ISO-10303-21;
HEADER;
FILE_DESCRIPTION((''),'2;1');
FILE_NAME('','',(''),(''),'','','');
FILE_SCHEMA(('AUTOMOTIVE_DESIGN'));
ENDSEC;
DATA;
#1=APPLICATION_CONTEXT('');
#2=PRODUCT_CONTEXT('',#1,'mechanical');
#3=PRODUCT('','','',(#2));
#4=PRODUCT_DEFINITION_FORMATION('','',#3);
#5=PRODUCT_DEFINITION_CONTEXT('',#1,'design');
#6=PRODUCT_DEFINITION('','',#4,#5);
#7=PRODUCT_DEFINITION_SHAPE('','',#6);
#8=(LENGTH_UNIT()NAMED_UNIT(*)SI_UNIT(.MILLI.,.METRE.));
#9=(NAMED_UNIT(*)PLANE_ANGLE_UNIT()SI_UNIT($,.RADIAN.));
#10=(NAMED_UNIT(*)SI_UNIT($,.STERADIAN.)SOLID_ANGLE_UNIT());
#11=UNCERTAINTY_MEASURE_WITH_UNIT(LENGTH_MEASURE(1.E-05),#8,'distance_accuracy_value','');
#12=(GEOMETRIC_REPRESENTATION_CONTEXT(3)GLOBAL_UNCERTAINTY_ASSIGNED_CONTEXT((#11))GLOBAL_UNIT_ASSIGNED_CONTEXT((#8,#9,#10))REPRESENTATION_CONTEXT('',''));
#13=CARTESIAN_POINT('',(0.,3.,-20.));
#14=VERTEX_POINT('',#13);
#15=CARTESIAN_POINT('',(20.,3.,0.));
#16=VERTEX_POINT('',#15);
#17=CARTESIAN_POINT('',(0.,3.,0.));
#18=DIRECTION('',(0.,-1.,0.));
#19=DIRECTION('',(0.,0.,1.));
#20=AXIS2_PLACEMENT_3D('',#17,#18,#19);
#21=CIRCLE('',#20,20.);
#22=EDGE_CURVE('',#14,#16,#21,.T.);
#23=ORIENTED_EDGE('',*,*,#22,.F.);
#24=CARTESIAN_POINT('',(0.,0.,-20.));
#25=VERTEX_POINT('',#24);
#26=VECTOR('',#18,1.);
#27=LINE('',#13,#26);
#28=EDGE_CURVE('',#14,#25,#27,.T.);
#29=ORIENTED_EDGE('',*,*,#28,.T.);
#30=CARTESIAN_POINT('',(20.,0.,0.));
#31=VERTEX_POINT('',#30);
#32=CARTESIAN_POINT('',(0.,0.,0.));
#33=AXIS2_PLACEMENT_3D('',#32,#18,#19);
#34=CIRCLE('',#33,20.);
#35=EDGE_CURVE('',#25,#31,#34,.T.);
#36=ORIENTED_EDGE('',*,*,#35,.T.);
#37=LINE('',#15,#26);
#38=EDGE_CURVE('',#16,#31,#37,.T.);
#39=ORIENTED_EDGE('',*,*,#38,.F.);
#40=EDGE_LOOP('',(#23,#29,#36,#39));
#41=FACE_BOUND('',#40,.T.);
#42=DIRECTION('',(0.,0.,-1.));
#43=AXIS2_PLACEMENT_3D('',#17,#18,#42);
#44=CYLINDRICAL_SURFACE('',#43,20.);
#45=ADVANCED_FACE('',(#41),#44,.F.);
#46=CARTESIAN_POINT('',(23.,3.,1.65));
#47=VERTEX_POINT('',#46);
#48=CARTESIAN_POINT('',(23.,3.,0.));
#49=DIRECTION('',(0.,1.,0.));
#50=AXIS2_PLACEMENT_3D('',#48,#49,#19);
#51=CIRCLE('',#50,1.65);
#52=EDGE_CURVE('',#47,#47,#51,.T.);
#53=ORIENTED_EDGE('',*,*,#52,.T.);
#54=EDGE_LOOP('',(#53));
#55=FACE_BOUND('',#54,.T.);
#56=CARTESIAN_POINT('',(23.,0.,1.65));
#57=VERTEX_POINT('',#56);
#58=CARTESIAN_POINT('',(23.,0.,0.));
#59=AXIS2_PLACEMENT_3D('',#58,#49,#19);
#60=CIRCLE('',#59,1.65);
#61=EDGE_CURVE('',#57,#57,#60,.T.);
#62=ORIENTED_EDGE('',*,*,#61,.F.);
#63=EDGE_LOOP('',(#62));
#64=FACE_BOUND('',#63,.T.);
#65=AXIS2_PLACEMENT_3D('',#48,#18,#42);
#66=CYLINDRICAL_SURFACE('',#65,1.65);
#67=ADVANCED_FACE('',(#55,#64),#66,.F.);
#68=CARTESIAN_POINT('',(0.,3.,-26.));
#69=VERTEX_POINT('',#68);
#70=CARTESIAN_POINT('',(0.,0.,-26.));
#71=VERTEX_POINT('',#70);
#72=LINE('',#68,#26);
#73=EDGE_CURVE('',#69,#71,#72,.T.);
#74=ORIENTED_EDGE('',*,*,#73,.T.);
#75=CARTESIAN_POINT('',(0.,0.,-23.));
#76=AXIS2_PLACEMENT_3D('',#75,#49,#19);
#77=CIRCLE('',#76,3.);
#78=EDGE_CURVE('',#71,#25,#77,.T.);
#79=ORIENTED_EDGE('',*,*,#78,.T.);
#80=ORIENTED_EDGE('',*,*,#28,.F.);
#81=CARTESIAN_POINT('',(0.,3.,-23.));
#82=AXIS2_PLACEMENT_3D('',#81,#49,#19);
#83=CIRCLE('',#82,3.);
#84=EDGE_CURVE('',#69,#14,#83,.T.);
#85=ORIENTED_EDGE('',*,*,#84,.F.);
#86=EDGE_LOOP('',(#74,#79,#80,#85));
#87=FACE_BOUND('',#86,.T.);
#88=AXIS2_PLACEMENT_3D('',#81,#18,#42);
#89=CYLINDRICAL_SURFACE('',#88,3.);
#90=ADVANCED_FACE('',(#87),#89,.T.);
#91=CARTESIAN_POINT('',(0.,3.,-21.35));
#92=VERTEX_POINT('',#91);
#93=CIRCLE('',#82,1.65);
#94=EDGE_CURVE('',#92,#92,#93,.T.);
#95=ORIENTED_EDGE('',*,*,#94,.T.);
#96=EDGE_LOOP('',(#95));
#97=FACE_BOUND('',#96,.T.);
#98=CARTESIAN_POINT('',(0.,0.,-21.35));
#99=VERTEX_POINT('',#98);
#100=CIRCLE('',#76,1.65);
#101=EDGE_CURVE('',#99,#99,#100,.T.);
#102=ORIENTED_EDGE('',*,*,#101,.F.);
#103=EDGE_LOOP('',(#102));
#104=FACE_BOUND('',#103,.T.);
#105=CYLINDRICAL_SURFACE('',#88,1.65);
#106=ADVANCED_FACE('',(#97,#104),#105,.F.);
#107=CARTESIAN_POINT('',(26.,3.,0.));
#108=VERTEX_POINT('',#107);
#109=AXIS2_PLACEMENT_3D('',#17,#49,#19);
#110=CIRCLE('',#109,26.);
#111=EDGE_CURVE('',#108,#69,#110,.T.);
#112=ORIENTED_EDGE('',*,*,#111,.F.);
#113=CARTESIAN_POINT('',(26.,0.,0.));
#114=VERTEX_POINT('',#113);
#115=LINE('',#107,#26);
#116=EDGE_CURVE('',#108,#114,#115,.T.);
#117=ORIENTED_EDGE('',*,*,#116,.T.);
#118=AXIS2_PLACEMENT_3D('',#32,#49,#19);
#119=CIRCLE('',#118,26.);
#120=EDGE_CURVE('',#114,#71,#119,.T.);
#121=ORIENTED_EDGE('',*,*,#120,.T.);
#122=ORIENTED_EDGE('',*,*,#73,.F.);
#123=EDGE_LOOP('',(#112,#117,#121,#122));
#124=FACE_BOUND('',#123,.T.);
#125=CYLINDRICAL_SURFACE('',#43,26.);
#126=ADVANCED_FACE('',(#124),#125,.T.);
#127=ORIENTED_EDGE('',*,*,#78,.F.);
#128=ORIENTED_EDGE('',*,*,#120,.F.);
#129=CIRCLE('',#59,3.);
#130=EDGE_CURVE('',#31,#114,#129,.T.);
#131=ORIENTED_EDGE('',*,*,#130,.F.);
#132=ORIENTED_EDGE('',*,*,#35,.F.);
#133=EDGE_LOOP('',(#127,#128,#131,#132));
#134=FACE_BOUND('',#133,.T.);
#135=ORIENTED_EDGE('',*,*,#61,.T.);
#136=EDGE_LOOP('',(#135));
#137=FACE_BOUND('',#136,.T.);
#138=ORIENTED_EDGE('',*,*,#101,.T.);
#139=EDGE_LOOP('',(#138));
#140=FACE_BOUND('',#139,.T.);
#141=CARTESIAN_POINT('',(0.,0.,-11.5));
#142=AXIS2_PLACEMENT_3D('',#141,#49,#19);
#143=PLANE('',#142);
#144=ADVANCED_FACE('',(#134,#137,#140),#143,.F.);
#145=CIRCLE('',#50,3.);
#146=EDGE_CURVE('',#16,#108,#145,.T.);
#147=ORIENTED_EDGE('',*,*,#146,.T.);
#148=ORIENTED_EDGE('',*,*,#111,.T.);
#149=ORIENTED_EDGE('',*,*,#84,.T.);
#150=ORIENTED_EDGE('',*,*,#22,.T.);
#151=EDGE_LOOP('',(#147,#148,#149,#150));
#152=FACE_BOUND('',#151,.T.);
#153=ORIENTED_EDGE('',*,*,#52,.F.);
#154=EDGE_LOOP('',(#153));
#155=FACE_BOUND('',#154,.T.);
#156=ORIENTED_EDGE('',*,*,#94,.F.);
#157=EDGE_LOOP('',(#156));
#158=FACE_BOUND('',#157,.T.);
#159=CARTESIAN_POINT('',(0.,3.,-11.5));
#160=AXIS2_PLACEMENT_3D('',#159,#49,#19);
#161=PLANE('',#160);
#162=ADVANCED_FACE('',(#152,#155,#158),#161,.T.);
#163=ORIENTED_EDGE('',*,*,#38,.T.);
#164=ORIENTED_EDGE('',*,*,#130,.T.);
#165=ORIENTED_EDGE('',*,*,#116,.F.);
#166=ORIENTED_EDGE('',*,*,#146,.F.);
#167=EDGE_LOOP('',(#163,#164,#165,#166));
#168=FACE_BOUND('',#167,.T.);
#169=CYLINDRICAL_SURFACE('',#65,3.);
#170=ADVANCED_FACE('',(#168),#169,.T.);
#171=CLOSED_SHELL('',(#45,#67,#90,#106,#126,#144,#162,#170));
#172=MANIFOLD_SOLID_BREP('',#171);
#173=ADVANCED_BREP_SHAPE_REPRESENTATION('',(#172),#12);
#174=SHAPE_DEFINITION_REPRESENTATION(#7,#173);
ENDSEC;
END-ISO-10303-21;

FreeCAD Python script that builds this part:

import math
import FreeCAD as App
import Part
import Sketcher
from FreeCAD import Vector

doc = App.newDocument("Part")
body = doc.addObject("PartDesign::Body", "Body")

sketch1 = body.newObject("Sketcher::SketchObject", "Sketch")
sketch1.AttachmentSupport = (doc.getObject("XZ_Plane"), [""])
sketch1.MapMode = "FlatFace"
sketch1.addGeometry(Part.ArcOfCircle(Part.Circle(Vector(0, 0, 0), Vector(0, 0, 1), 20), math.radians(-90), math.radians(0)), False)
sketch1.addGeometry(Part.ArcOfCircle(Part.Circle(Vector(23, 0, 0), Vector(0, 0, 1), 3), math.radians(0), math.radians(180)), False)
sketch1.addGeometry(Part.ArcOfCircle(Part.Circle(Vector(0, 0, 0), Vector(0, 0, 1), 26), math.radians(-90), math.radians(0)), False)
sketch1.addGeometry(Part.ArcOfCircle(Part.Circle(Vector(0, -23, 0), Vector(0, 0, 1), 3), math.radians(90), math.radians(270)), False)
sketch1.addGeometry(Part.Circle(Vector(23, 0, 0), Vector(0, 0, 1), 1.6), False)
sketch1.addGeometry(Part.Circle(Vector(0, -23, 0), Vector(0, 0, 1), 1.6), False)
sketch1.addConstraint(Sketcher.Constraint("Tangent", 0, 2, 1, 2))
sketch1.addConstraint(Sketcher.Constraint("Tangent", 1, 1, 2, 2))
sketch1.addConstraint(Sketcher.Constraint("Tangent", 2, 1, 3, 2))
sketch1.addConstraint(Sketcher.Constraint("Tangent", 3, 1, 0, 1))
sketch1.addConstraint(Sketcher.Constraint("Coincident", 0, 3, -1, 1))
sketch1.addConstraint(Sketcher.Constraint("Coincident", 2, 3, -1, 1))
sketch1.addConstraint(Sketcher.Constraint("Coincident", 4, 3, 1, 3))
sketch1.addConstraint(Sketcher.Constraint("Coincident", 5, 3, 3, 3))
sketch1.addConstraint(Sketcher.Constraint("Equal", 4, 5))
sketch1.addConstraint(Sketcher.Constraint("PointOnObject", 1, 3, -1))
sketch1.addConstraint(Sketcher.Constraint("PointOnObject", 3, 3, -2))
sketch1.addConstraint(Sketcher.Constraint("Radius", 0, 20.0))
sketch1.addConstraint(Sketcher.Constraint("Radius", 1, 3.0))
sketch1.addConstraint(Sketcher.Constraint("Diameter", 4, 3.3))
pad1 = body.newObject("PartDesign::Pad", "Pad")
pad1.Profile = sketch1
pad1.Length = 3
pad1.Reversed = True

doc.recompute()
